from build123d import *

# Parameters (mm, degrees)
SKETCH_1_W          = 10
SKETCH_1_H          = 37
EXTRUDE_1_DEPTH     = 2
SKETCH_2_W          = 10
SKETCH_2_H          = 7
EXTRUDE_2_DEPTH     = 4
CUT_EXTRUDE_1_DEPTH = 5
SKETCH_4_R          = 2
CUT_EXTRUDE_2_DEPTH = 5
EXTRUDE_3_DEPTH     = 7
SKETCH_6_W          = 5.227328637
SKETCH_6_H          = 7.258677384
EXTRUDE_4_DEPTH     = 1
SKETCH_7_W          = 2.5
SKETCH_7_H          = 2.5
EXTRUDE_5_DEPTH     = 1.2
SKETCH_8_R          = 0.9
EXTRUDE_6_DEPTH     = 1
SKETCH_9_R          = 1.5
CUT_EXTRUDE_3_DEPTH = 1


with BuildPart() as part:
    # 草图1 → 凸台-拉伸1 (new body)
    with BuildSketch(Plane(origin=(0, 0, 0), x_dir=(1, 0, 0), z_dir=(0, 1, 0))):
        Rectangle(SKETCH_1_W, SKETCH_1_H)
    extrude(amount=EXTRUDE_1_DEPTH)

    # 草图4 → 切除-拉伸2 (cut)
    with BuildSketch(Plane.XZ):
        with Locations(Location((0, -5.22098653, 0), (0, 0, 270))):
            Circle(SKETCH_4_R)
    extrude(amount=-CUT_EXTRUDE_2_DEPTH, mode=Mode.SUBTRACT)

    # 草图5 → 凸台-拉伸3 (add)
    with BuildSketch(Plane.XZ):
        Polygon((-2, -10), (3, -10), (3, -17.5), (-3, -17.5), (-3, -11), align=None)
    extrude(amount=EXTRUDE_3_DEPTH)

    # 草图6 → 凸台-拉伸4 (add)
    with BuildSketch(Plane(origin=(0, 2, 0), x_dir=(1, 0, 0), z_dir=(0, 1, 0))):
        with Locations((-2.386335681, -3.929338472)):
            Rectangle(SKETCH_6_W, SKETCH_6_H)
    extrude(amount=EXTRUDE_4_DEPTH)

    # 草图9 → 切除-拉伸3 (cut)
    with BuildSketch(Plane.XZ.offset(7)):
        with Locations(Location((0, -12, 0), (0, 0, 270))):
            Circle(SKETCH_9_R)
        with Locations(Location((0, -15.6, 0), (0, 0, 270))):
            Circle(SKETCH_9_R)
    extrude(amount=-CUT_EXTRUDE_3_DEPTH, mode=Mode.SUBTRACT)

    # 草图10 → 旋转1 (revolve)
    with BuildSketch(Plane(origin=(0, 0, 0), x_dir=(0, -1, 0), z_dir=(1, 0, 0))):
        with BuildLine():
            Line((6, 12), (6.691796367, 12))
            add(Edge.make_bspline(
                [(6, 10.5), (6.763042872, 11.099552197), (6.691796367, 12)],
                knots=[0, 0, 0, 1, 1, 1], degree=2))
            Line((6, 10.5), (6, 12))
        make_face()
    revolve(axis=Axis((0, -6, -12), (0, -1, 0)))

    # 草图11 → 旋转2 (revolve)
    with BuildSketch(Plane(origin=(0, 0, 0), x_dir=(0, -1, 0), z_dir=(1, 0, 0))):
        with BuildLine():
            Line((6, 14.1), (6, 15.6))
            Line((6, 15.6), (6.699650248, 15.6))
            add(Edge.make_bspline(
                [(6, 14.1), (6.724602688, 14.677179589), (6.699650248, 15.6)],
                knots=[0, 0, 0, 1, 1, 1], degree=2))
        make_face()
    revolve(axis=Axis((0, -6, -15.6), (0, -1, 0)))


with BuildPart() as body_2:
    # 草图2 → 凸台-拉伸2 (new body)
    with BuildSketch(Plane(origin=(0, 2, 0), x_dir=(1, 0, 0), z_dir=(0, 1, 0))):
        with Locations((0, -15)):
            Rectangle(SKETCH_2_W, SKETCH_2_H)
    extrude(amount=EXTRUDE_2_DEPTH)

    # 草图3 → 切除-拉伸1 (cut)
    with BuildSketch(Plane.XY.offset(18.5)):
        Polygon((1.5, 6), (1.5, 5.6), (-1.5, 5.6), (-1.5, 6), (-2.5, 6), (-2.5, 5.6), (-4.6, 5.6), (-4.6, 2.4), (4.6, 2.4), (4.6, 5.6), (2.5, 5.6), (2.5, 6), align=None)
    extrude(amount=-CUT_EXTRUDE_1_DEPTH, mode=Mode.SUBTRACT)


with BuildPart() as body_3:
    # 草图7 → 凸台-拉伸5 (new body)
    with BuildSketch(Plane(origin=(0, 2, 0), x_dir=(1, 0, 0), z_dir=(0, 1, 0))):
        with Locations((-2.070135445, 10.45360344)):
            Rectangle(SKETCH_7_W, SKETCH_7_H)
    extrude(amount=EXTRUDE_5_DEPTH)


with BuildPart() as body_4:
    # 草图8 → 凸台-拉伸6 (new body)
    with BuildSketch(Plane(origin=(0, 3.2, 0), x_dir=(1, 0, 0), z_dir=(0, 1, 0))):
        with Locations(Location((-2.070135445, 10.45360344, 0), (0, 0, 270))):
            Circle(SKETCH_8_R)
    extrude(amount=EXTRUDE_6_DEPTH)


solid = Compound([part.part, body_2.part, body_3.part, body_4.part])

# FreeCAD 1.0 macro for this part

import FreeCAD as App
import Part
import Sketcher
Q = App.Units.Quantity

doc = App.newDocument("Part")
body = doc.addObject("PartDesign::Body", "Body")

sketch1 = doc.addObject("Sketcher::SketchObject", "Sketch")
body.addObject(sketch1)
sketch1.AttachmentSupport = (doc.XZ_Plane, [""])
sketch1.MapMode = "FlatFace"
sketch1.addGeometry(Part.LineSegment(App.Vector(-5, -18, 0), App.Vector(-5, 18, 0)), False)
sketch1.addGeometry(Part.LineSegment(App.Vector(-5, 18, 0), App.Vector(5, 18, 0)), False)
sketch1.addGeometry(Part.LineSegment(App.Vector(5, 18, 0), App.Vector(5, -18, 0)), False)
sketch1.addGeometry(Part.LineSegment(App.Vector(5, -18, 0), App.Vector(-5, -18, 0)), False)
sketch1.addConstraint(Sketcher.Constraint("Coincident", 0, 2, 1, 1))
sketch1.addConstraint(Sketcher.Constraint("Coincident", 1, 2, 2, 1))
sketch1.addConstraint(Sketcher.Constraint("Coincident", 2, 2, 3, 1))
sketch1.addConstraint(Sketcher.Constraint("Coincident", 3, 2, 0, 1))
sketch1.addConstraint(Sketcher.Constraint("Vertical", 0))
sketch1.addConstraint(Sketcher.Constraint("Horizontal", 1))
sketch1.addConstraint(Sketcher.Constraint("Vertical", 2))
sketch1.addConstraint(Sketcher.Constraint("Horizontal", 3))
sketch1.addConstraint(Sketcher.Constraint("Symmetric", 0, 2, 2, 2, -1, 1))
sketch1.addConstraint(Sketcher.Constraint("DistanceX", 1, 1, 1, 2, 10.0))
sketch1.addConstraint(Sketcher.Constraint("DistanceY", 0, 1, 0, 2, 37.0))
pad1 = doc.addObject("PartDesign::Pad", "Pad")
body.addObject(pad1)
pad1.Profile = sketch1
pad1.Length = 2
pad1.Reversed = True

sketch2 = doc.addObject("Sketcher::SketchObject", "Sketch001")
body.addObject(sketch2)
sketch2.AttachmentSupport = (doc.XZ_Plane, [""])
sketch2.MapMode = "FlatFace"
sketch2.addGeometry(Part.Circle(App.Vector(0, -5.2, 0), App.Vector(0, 0, 1), 2), False)
sketch2.addConstraint(Sketcher.Constraint("PointOnObject", 0, 3, -2))
sketch2.addConstraint(Sketcher.Constraint("Diameter", 0, 4.0))
sketch2.addConstraint(Sketcher.Constraint("DistanceY", 0, 3, -1, 1, 5.220987))
pocket1 = doc.addObject("PartDesign::Pocket", "Pocket")
body.addObject(pocket1)
pocket1.Profile = sketch2
pocket1.Length = 5

sketch3 = doc.addObject("Sketcher::SketchObject", "Sketch002")
body.addObject(sketch3)
sketch3.AttachmentSupport = (doc.XZ_Plane, [""])
sketch3.MapMode = "FlatFace"
sketch3.addGeometry(Part.LineSegment(App.Vector(3, -10, 0), App.Vector(-2, -10, 0)), False)
sketch3.addGeometry(Part.LineSegment(App.Vector(-2, -10, 0), App.Vector(-3, -11, 0)), False)
sketch3.addGeometry(Part.LineSegment(App.Vector(-3, -11, 0), App.Vector(-3, -17.5, 0)), False)
sketch3.addGeometry(Part.LineSegment(App.Vector(-3, -17.5, 0), App.Vector(3, -17.5, 0)), False)
sketch3.addGeometry(Part.LineSegment(App.Vector(3, -17.5, 0), App.Vector(3, -10, 0)), False)
sketch3.addConstraint(Sketcher.Constraint("Coincident", 0, 2, 1, 1))
sketch3.addConstraint(Sketcher.Constraint("Coincident", 1, 2, 2, 1))
sketch3.addConstraint(Sketcher.Constraint("Coincident", 2, 2, 3, 1))
sketch3.addConstraint(Sketcher.Constraint("Coincident", 3, 2, 4, 1))
sketch3.addConstraint(Sketcher.Constraint("Coincident", 4, 2, 0, 1))
sketch3.addConstraint(Sketcher.Constraint("Horizontal", 0))
sketch3.addConstraint(Sketcher.Constraint("Vertical", 2))
sketch3.addConstraint(Sketcher.Constraint("Horizontal", 3))
sketch3.addConstraint(Sketcher.Constraint("Vertical", 4))
sketch3.addConstraint(Sketcher.Constraint("DistanceX", 0, 2, 0, 1, 5.0))
sketch3.addConstraint(Sketcher.Constraint("DistanceX", 3, 1, 3, 2, 6.0))
sketch3.addConstraint(Sketcher.Constraint("Angle", 1, Q("-135 deg")))
sketch3.addConstraint(Sketcher.Constraint("DistanceY", 2, 2, 2, 1, 6.5))
sketch3.addConstraint(Sketcher.Constraint("DistanceX", 0, 2, -1, 1, 2.0))
sketch3.addConstraint(Sketcher.Constraint("DistanceY", 0, 2, -1, 1, 10.0))
pad2 = doc.addObject("PartDesign::Pad", "Pad001")
body.addObject(pad2)
pad2.Profile = sketch3
pad2.Length = 7

sketch4 = doc.addObject("Sketcher::SketchObject", "Sketch003")
body.addObject(sketch4)
sketch4.AttachmentSupport = (doc.XZ_Plane, [""])
sketch4.MapMode = "FlatFace"
sketch4.AttachmentOffset = App.Placement(App.Vector(0, 0, -2), App.Rotation())
sketch4.addGeometry(Part.LineSegment(App.Vector(-5, 0, 0), App.Vector(-5, 8, 0)), False)
sketch4.addGeometry(Part.LineSegment(App.Vector(-5, 8, 0), App.Vector(0, 8, 0)), False)
sketch4.addGeometry(Part.LineSegment(App.Vector(0, 8, 0), App.Vector(0, 0, 0)), False)
sketch4.addGeometry(Part.LineSegment(App.Vector(0, 0, 0), App.Vector(-5, 0, 0)), False)
sketch4.addConstraint(Sketcher.Constraint("Coincident", 0, 2, 1, 1))
sketch4.addConstraint(Sketcher.Constraint("Coincident", 1, 2, 2, 1))
sketch4.addConstraint(Sketcher.Constraint("Coincident", 2, 2, 3, 1))
sketch4.addConstraint(Sketcher.Constraint("Coincident", 3, 2, 0, 1))
sketch4.addConstraint(Sketcher.Constraint("Vertical", 0))
sketch4.addConstraint(Sketcher.Constraint("Horizontal", 1))
sketch4.addConstraint(Sketcher.Constraint("Vertical", 2))
sketch4.addConstraint(Sketcher.Constraint("Horizontal", 3))
sketch4.addConstraint(Sketcher.Constraint("DistanceX", 0, 2, -1, 1, 5.0))
sketch4.addConstraint(Sketcher.Constraint("DistanceY", -1, 1, 2, 2, 0.3))
sketch4.addConstraint(Sketcher.Constraint("DistanceX", 1, 1, 1, 2, 5.227329))
sketch4.addConstraint(Sketcher.Constraint("DistanceY", 0, 1, 0, 2, 7.258677))
pad3 = doc.addObject("PartDesign::Pad", "Pad002")
body.addObject(pad3)
pad3.Profile = sketch4
pad3.Length = 1
pad3.Reversed = True

sketch5 = doc.addObject("Sketcher::SketchObject", "Sketch004")
body.addObject(sketch5)
sketch5.AttachmentSupport = (doc.XZ_Plane, [""])
sketch5.MapMode = "FlatFace"
sketch5.AttachmentOffset = App.Placement(App.Vector(0, 0, 7), App.Rotation())
sketch5.addGeometry(Part.Circle(App.Vector(0, -12, 0), App.Vector(0, 0, 1), 1.5), False)
sketch5.addGeometry(Part.Circle(App.Vector(0, -15.6, 0), App.Vector(0, 0, 1), 1.5), False)
sketch5.addConstraint(Sketcher.Constraint("Equal", 0, 1))
sketch5.addConstraint(Sketcher.Constraint("PointOnObject", 0, 3, -2))
sketch5.addConstraint(Sketcher.Constraint("PointOnObject", 1, 3, -2))
sketch5.addConstraint(Sketcher.Constraint("Diameter", 0, 3.0))
sketch5.addConstraint(Sketcher.Constraint("DistanceY", 0, 3, -1, 1, 12.0))
sketch5.addConstraint(Sketcher.Constraint("DistanceY", 1, 3, -1, 1, 15.6))
pocket2 = doc.addObject("PartDesign::Pocket", "Pocket001")
body.addObject(pocket2)
pocket2.Profile = sketch5
pocket2.Length = 1

sketch6 = doc.addObject("Sketcher::SketchObject", "Sketch005")
body.addObject(sketch6)
sketch6.AttachmentSupport = (doc.YZ_Plane, [""])
sketch6.MapMode = "FlatFace"
sketch6.addGeometry(Part.LineSegment(App.Vector(-6.691796, -12, 0), App.Vector(-6, -12, 0)), False)
sketch6.addGeometry(Part.LineSegment(App.Vector(-6, -12, 0), App.Vector(-6, -10.5, 0)), False)
sketch6.addGeometry(Part.BSplineCurve([App.Vector(-6, -10.5, 0), App.Vector(-6.763043, -11.099552, 0), App.Vector(-6.691796, -12, 0)], [3, 3], [0, 1], False, 2, [1, 1, 1], False), False)
sketch6.addGeometry(Part.LineSegment(App.Vector(-6, -12, 0), App.Vector(-6.691796, -12, 0)), True)
sketch6.addConstraint(Sketcher.Constraint("Block", 2))
sketch6.addConstraint(Sketcher.Constraint("Coincident", 0, 2, 1, 1))
sketch6.addConstraint(Sketcher.Constraint("Coincident", 1, 2, 2, 1))
sketch6.addConstraint(Sketcher.Constraint("Coincident", 2, 2, 0, 1))
sketch6.addConstraint(Sketcher.Constraint("Horizontal", 0))
sketch6.addConstraint(Sketcher.Constraint("Vertical", 1))
sketch6.addConstraint(Sketcher.Constraint("Horizontal", 3))
sketch6.addConstraint(Sketcher.Constraint("Coincident", 3, 1, 0, 2))
sketch6.addConstraint(Sketcher.Constraint("Equal", 0, 3))
revolution = doc.addObject("PartDesign::Revolution", "Revolution")
body.addObject(revolution)
revolution.Profile = sketch6
revolution.ReferenceAxis = (sketch6, ["Axis0"])
revolution.Angle = 360

sketch7 = doc.addObject("Sketcher::SketchObject", "Sketch006")
body.addObject(sketch7)
sketch7.AttachmentSupport = (doc.YZ_Plane, [""])
sketch7.MapMode = "FlatFace"
sketch7.addGeometry(Part.LineSegment(App.Vector(-6, -15.6, 0), App.Vector(-6, -14.1, 0)), False)
sketch7.addGeometry(Part.BSplineCurve([App.Vector(-6, -14.1, 0), App.Vector(-6.724603, -14.67718, 0), App.Vector(-6.69965, -15.6, 0)], [3, 3], [0, 1], False, 2, [1, 1, 1], False), False)
sketch7.addGeometry(Part.LineSegment(App.Vector(-6.69965, -15.6, 0), App.Vector(-6, -15.6, 0)), False)
sketch7.addGeometry(Part.LineSegment(App.Vector(-6, -15.6, 0), App.Vector(-6.69965, -15.6, 0)), True)
sketch7.addConstraint(Sketcher.Constraint("Block", 1))
sketch7.addConstraint(Sketcher.Constraint("Coincident", 0, 2, 1, 1))
sketch7.addConstraint(Sketcher.Constraint("Coincident", 1, 2, 2, 1))
sketch7.addConstraint(Sketcher.Constraint("Coincident", 2, 2, 0, 1))
sketch7.addConstraint(Sketcher.Constraint("Vertical", 0))
sketch7.addConstraint(Sketcher.Constraint("Horizontal", 2))
sketch7.addConstraint(Sketcher.Constraint("Horizontal", 3))
sketch7.addConstraint(Sketcher.Constraint("Coincident", 3, 1, 2, 2))
sketch7.addConstraint(Sketcher.Constraint("Equal", 2, 3))
revolution2 = doc.addObject("PartDesign::Revolution", "Revolution001")
body.addObject(revolution2)
revolution2.Profile = sketch7
revolution2.ReferenceAxis = (sketch7, ["Axis0"])
revolution2.Angle = 360
body2 = doc.addObject("PartDesign::Body", "Body001")

sketch8 = doc.addObject("Sketcher::SketchObject", "Sketch007")
body2.addObject(sketch8)
sketch8.AttachmentSupport = (doc.getObject("XZ_Plane001"), [""])
sketch8.MapMode = "FlatFace"
sketch8.AttachmentOffset = App.Placement(App.Vector(0, 0, -2), App.Rotation())
sketch8.addGeometry(Part.LineSegment(App.Vector(-5, 12, 0), App.Vector(-5, 18, 0)), False)
sketch8.addGeometry(Part.LineSegment(App.Vector(-5, 18, 0), App.Vector(5, 18, 0)), False)
sketch8.addGeometry(Part.LineSegment(App.Vector(5, 18, 0), App.Vector(5, 12, 0)), False)
sketch8.addGeometry(Part.LineSegment(App.Vector(5, 12, 0), App.Vector(-5, 12, 0)), False)
sketch8.addConstraint(Sketcher.Constraint("Coincident", 0, 2, 1, 1))
sketch8.addConstraint(Sketcher.Constraint("Coincident", 1, 2, 2, 1))
sketch8.addConstraint(Sketcher.Constraint("Coincident", 2, 2, 3, 1))
sketch8.addConstraint(Sketcher.Constraint("Coincident", 3, 2, 0, 1))
sketch8.addConstraint(Sketcher.Constraint("Vertical", 0))
sketch8.addConstraint(Sketcher.Constraint("Horizontal", 1))
sketch8.addConstraint(Sketcher.Constraint("Vertical", 2))
sketch8.addConstraint(Sketcher.Constraint("Horizontal", 3))
sketch8.addConstraint(Sketcher.Constraint("DistanceX", 1, 1, 1, 2, 10.0))
sketch8.addConstraint(Sketcher.Constraint("DistanceY", 0, 1, 0, 2, 7.0))
sketch8.addConstraint(Sketcher.Constraint("DistanceX", 0, 2, -1, 1, 5.0))
sketch8.addConstraint(Sketcher.Constraint("DistanceY", -1, 1, 0, 2, 18.5))
pad4 = doc.addObject("PartDesign::Pad", "Pad003")
body2.addObject(pad4)
pad4.Profile = sketch8
pad4.Length = 4
pad4.Reversed = True

sketch9 = doc.addObject("Sketcher::SketchObject", "Sketch008")
body2.addObject(sketch9)
sketch9.AttachmentSupport = (doc.getObject("XY_Plane001"), [""])
sketch9.MapMode = "FlatFace"
sketch9.AttachmentOffset = App.Placement(App.Vector(0, 0, 18.5), App.Rotation())
sketch9.addGeometry(Part.LineSegment(App.Vector(1.5, 6, 0), App.Vector(1.5, 5.6, 0)), False)
sketch9.addGeometry(Part.LineSegment(App.Vector(1.5, 5.6, 0), App.Vector(-1.5, 5.6, 0)), False)
sketch9.addGeometry(Part.LineSegment(App.Vector(-1.5, 5.6, 0), App.Vector(-1.5, 6, 0)), False)
sketch9.addGeometry(Part.LineSegment(App.Vector(-1.5, 6, 0), App.Vector(-2.5, 6, 0)), False)
sketch9.addGeometry(Part.LineSegment(App.Vector(-2.5, 6, 0), App.Vector(-2.5, 5.6, 0)), False)
sketch9.addGeometry(Part.LineSegment(App.Vector(-2.5, 5.6, 0), App.Vector(-4.6, 5.6, 0)), False)
sketch9.addGeometry(Part.LineSegment(App.Vector(-4.6, 5.6, 0), App.Vector(-4.6, 2.4, 0)), False)
sketch9.addGeometry(Part.LineSegment(App.Vector(-4.6, 2.4, 0), App.Vector(4.6, 2.4, 0)), False)
sketch9.addGeometry(Part.LineSegment(App.Vector(4.6, 2.4, 0), App.Vector(4.6, 5.6, 0)), False)
sketch9.addGeometry(Part.LineSegment(App.Vector(4.6, 5.6, 0), App.Vector(2.5, 5.6, 0)), False)
sketch9.addGeometry(Part.LineSegment(App.Vector(2.5, 5.6, 0), App.Vector(2.5, 6, 0)), False)
sketch9.addGeometry(Part.LineSegment(App.Vector(2.5, 6, 0), App.Vector(1.5, 6, 0)), False)
sketch9.addConstraint(Sketcher.Constraint("Coincident", 0, 2, 1, 1))
sketch9.addConstraint(Sketcher.Constraint("Coincident", 1, 2, 2, 1))
sketch9.addConstraint(Sketcher.Constraint("Coincident", 2, 2, 3, 1))
sketch9.addConstraint(Sketcher.Constraint("Coincident", 3, 2, 4, 1))
sketch9.addConstraint(Sketcher.Constraint("Coincident", 4, 2, 5, 1))
sketch9.addConstraint(Sketcher.Constraint("Coincident", 5, 2, 6, 1))
sketch9.addConstraint(Sketcher.Constraint("Coincident", 6, 2, 7, 1))
sketch9.addConstraint(Sketcher.Constraint("Coincident", 7, 2, 8, 1))
sketch9.addConstraint(Sketcher.Constraint("Coincident", 8, 2, 9, 1))
sketch9.addConstraint(Sketcher.Constraint("Coincident", 9, 2, 10, 1))
sketch9.addConstraint(Sketcher.Constraint("Coincident", 10, 2, 11, 1))
sketch9.addConstraint(Sketcher.Constraint("Coincident", 11, 2, 0, 1))
sketch9.addConstraint(Sketcher.Constraint("Vertical", 0))
sketch9.addConstraint(Sketcher.Constraint("Horizontal", 1))
sketch9.addConstraint(Sketcher.Constraint("Vertical", 2))
sketch9.addConstraint(Sketcher.Constraint("Horizontal", 3))
sketch9.addConstraint(Sketcher.Constraint("Vertical", 4))
sketch9.addConstraint(Sketcher.Constraint("Horizontal", 5))
sketch9.addConstraint(Sketcher.Constraint("Vertical", 6))
sketch9.addConstraint(Sketcher.Constraint("Horizontal", 7))
sketch9.addConstraint(Sketcher.Constraint("Vertical", 8))
sketch9.addConstraint(Sketcher.Constraint("Horizontal", 9))
sketch9.addConstraint(Sketcher.Constraint("Vertical", 10))
sketch9.addConstraint(Sketcher.Constraint("Horizontal", 11))
sketch9.addConstraint(Sketcher.Constraint("Symmetric", 5, 2, 8, 2, -2))
sketch9.addConstraint(Sketcher.Constraint("Symmetric", 3, 2, 10, 2, -2))
sketch9.addConstraint(Sketcher.Constraint("Horizontal", 1, 2, 4, 2))
sketch9.addConstraint(Sketcher.Constraint("Equal", 3, 11))
sketch9.addConstraint(Sketcher.Constraint("DistanceX", 1, 2, 1, 1, 3.0))
sketch9.addConstraint(Sketcher.Constraint("DistanceX", 3, 2, 3, 1, 1.0))
sketch9.addConstraint(Sketcher.Constraint("DistanceX", 5, 2, 5, 1, 2.1))
sketch9.addConstraint(Sketcher.Constraint("DistanceY", 0, 2, 0, 1, 0.4))
sketch9.addConstraint(Sketcher.Constraint("DistanceY", 6, 2, 6, 1, 3.2))
sketch9.addConstraint(Sketcher.Constraint("DistanceY", -1, 1, 2, 2, 6.0))
pocket3 = doc.addObject("PartDesign::Pocket", "Pocket002")
body2.addObject(pocket3)
pocket3.Profile = sketch9
pocket3.Length = 5
body3 = doc.addObject("PartDesign::Body", "Body002")

sketch10 = doc.addObject("Sketcher::SketchObject", "Sketch009")
body3.addObject(sketch10)
sketch10.AttachmentSupport = (doc.getObject("XZ_Plane002"), [""])
sketch10.MapMode = "FlatFace"
sketch10.AttachmentOffset = App.Placement(App.Vector(0, 0, -2), App.Rotation())
sketch10.addGeometry(Part.LineSegment(App.Vector(-3.3, -11.7, 0), App.Vector(-3.3, -9.2, 0)), False)
sketch10.addGeometry(Part.LineSegment(App.Vector(-3.3, -9.2, 0), App.Vector(-0.8, -9.2, 0)), False)
sketch10.addGeometry(Part.LineSegment(App.Vector(-0.8, -9.2, 0), App.Vector(-0.8, -11.7, 0)), False)
sketch10.addGeometry(Part.LineSegment(App.Vector(-0.8, -11.7, 0), App.Vector(-3.3, -11.7, 0)), False)
sketch10.addConstraint(Sketcher.Constraint("Coincident", 0, 2, 1, 1))
sketch10.addConstraint(Sketcher.Constraint("Coincident", 1, 2, 2, 1))
sketch10.addConstraint(Sketcher.Constraint("Coincident", 2, 2, 3, 1))
sketch10.addConstraint(Sketcher.Constraint("Coincident", 3, 2, 0, 1))
sketch10.addConstraint(Sketcher.Constraint("Vertical", 0))
sketch10.addConstraint(Sketcher.Constraint("Horizontal", 1))
sketch10.addConstraint(Sketcher.Constraint("Vertical", 2))
sketch10.addConstraint(Sketcher.Constraint("Horizontal", 3))
sketch10.addConstraint(Sketcher.Constraint("Equal", 3, 0))
sketch10.addConstraint(Sketcher.Constraint("DistanceX", 1, 1, 1, 2, 2.5))
sketch10.addConstraint(Sketcher.Constraint("DistanceX", 0, 2, -1, 1, 3.320135))
sketch10.addConstraint(Sketcher.Constraint("DistanceY", 0, 2, -1, 1, 9.203603))
pad5 = doc.addObject("PartDesign::Pad", "Pad004")
body3.addObject(pad5)
pad5.Profile = sketch10
pad5.Length = 1.2
pad5.Reversed = True
body4 = doc.addObject("PartDesign::Body", "Body003")

sketch11 = doc.addObject("Sketcher::SketchObject", "Sketch010")
body4.addObject(sketch11)
sketch11.AttachmentSupport = (doc.getObject("XZ_Plane003"), [""])
sketch11.MapMode = "FlatFace"
sketch11.AttachmentOffset = App.Placement(App.Vector(0, 0, -3.2), App.Rotation())
sketch11.addGeometry(Part.Circle(App.Vector(-2.1, -10.5, 0), App.Vector(0, 0, 1), 0.9), False)
sketch11.addConstraint(Sketcher.Constraint("Diameter", 0, 1.8))
sketch11.addConstraint(Sketcher.Constraint("DistanceX", 0, 3, -1, 1, 2.070135))
sketch11.addConstraint(Sketcher.Constraint("DistanceY", 0, 3, -1, 1, 10.453603))
pad6 = doc.addObject("PartDesign::Pad", "Pad005")
body4.addObject(pad6)
pad6.Profile = sketch11
pad6.Length = 1
pad6.Reversed = True

doc.recompute()
